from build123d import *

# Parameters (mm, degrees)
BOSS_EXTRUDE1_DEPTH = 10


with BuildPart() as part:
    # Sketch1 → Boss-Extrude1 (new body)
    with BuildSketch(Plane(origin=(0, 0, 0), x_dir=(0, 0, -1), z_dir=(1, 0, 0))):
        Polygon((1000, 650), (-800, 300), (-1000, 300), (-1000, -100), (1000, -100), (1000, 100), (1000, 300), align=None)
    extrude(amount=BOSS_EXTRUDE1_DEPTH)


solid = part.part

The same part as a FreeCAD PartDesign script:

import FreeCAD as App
import Part
import Sketcher
from FreeCAD import Vector
Q = App.Units.Quantity


def add_polygon(sketch, points):
    """Adds a closed chain of lines whose ends are joined by coincident constraints."""
    first, n = sketch.GeometryCount, len(points)
    for a, b in zip(points, points[1:] + points[:1]):
        sketch.addGeometry(Part.LineSegment(App.Vector(*a, 0), App.Vector(*b, 0)), False)
    for i in range(n):
        sketch.addConstraint(Sketcher.Constraint("Coincident", first + i, 2, first + (i + 1) % n, 1))

doc = App.newDocument("Part")
body = doc.addObject("PartDesign::Body", "Body")

# Sketch on YZ plane
sketch1 = body.newObject("Sketcher::SketchObject", "Sketch")
sketch1.AttachmentSupport = (doc.getObject("YZ_Plane"), [""])
sketch1.MapMode = "FlatFace"
add_polygon(sketch1, [(650, -1000), (300, 800), (300, 1000), (-100, 1000), (-100, -1000)])  # lines 0-4
sketch1.addConstraint([
    Sketcher.Constraint("Vertical", 1),
    Sketcher.Constraint("Horizontal", 2),
    Sketcher.Constraint("Vertical", 3),
    Sketcher.Constraint("Horizontal", 4),
    Sketcher.Constraint("DistanceX", 2, 2, 2, 1, Q("400 mm")),
    Sketcher.Constraint("DistanceX", 4, 1, 4, 2, Q("750 mm")),
    Sketcher.Constraint("DistanceY", 1, 1, 1, 2, Q("200 mm")),
    Sketcher.Constraint("DistanceY", 3, 2, 3, 1, Q("2000 mm")),
    Sketcher.Constraint("DistanceX", -1, 1, 0, 2, Q("300 mm")),
    Sketcher.Constraint("DistanceY", -1, 1, 0, 2, Q("800 mm")),
])
pad1 = body.newObject("PartDesign::Pad", "Pad")
pad1.Profile = sketch1
pad1.Length = 10

doc.recompute()
